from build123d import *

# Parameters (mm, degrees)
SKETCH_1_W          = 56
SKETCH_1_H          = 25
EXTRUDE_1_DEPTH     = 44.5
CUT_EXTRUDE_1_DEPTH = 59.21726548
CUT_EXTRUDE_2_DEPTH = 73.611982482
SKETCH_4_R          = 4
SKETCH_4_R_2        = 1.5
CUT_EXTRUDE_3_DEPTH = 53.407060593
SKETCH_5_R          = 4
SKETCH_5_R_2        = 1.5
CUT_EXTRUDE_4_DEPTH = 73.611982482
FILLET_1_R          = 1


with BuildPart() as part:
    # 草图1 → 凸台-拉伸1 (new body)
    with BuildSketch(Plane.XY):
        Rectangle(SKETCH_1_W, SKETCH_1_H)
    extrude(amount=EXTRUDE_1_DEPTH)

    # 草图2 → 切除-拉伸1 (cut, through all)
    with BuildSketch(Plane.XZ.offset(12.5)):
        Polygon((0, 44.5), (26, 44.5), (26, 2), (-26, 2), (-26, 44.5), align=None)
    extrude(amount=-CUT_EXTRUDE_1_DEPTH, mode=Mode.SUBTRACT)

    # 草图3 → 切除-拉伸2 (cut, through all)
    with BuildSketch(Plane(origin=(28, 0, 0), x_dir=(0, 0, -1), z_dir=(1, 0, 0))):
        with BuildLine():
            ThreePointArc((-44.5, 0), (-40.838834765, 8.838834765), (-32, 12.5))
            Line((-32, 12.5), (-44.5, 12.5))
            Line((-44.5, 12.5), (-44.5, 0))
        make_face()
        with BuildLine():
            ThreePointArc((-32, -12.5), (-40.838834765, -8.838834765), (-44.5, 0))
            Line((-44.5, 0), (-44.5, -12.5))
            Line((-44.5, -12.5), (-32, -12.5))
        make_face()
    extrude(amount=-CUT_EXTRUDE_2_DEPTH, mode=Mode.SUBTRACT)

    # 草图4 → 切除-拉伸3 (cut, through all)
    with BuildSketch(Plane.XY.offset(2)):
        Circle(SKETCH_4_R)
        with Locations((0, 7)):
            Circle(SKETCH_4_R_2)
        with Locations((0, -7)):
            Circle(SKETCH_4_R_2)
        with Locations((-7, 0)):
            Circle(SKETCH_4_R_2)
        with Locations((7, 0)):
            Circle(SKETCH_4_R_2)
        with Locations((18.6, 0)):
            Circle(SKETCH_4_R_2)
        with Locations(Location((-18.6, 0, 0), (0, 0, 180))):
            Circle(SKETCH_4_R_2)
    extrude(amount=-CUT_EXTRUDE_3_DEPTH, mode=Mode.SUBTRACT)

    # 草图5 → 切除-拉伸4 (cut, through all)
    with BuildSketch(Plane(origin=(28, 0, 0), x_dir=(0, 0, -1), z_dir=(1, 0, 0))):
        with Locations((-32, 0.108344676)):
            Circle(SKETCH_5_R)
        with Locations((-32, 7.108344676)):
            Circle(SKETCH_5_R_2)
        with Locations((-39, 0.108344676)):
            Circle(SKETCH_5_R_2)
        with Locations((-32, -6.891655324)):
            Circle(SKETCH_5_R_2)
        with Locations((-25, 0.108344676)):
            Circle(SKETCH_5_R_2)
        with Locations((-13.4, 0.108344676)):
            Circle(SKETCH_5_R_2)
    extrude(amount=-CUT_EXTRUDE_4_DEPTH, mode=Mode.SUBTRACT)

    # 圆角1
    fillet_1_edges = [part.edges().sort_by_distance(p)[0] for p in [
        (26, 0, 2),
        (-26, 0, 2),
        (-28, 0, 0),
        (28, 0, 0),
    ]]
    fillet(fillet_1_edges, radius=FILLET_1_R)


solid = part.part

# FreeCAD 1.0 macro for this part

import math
import FreeCAD as App
import Part
import Sketcher
from FreeCAD import Vector
Q = App.Units.Quantity


def edges_at(feature, points):
    """Names of the edges that pass closest to the given points."""
    edges = feature.Shape.Edges
    near = lambda p: min(range(len(edges)), key=lambda i: edges[i].distToShape(Part.Vertex(*p))[0])
    return sorted({f"Edge{near(p) + 1}" for p in points})


def add_polygon(sketch, points):
    """Adds a closed chain of lines whose ends are joined by coincident constraints."""
    first, n = sketch.GeometryCount, len(points)
    for a, b in zip(points, points[1:] + points[:1]):
        sketch.addGeometry(Part.LineSegment(App.Vector(*a, 0), App.Vector(*b, 0)), False)
    for i in range(n):
        sketch.addConstraint(Sketcher.Constraint("Coincident", first + i, 2, first + (i + 1) % n, 1))

doc = App.newDocument("Part")
body = doc.addObject("PartDesign::Body", "Body")

sketch1 = body.newObject("Sketcher::SketchObject", "Sketch")
sketch1.AttachmentSupport = (doc.getObject("XY_Plane"), [""])
sketch1.MapMode = "FlatFace"
add_polygon(sketch1, [(-28, 12.5), (-28, -12.5), (28, -12.5), (28, 12.5)])
sketch1.addConstraint(Sketcher.Constraint("Vertical", 0))
sketch1.addConstraint(Sketcher.Constraint("Horizontal", 1))
sketch1.addConstraint(Sketcher.Constraint("Vertical", 2))
sketch1.addConstraint(Sketcher.Constraint("Horizontal", 3))
sketch1.addConstraint(Sketcher.Constraint("Symmetric", 0, 2, 2, 2, -1, 1))
sketch1.addConstraint(Sketcher.Constraint("DistanceX", 1, 1, 1, 2, Q("56 mm")))
sketch1.addConstraint(Sketcher.Constraint("DistanceY", 0, 2, 0, 1, Q("25 mm")))
pad1 = body.newObject("PartDesign::Pad", "Pad")
pad1.Profile = sketch1
pad1.Length = 44.5

sketch2 = body.newObject("Sketcher::SketchObject", "Sketch001")
sketch2.AttachmentSupport = (doc.getObject("XZ_Plane"), [""])
sketch2.MapMode = "FlatFace"
sketch2.AttachmentOffset = App.Placement(Vector(0, 0, 12.5), App.Rotation())
add_polygon(sketch2, [(26, 44.5), (-26, 44.5), (-26, 2), (26, 2)])
sketch2.addConstraint(Sketcher.Constraint("Horizontal", 0))
sketch2.addConstraint(Sketcher.Constraint("Vertical", 1))
sketch2.addConstraint(Sketcher.Constraint("Horizontal", 2))
sketch2.addConstraint(Sketcher.Constraint("Vertical", 3))
sketch2.addConstraint(Sketcher.Constraint("DistanceX", 0, 2, 0, 1, Q("52 mm")))
sketch2.addConstraint(Sketcher.Constraint("DistanceY", 1, 2, 1, 1, Q("42.5 mm")))
sketch2.addConstraint(Sketcher.Constraint("DistanceX", 0, 2, -1, 1, Q("26 mm")))
sketch2.addConstraint(Sketcher.Constraint("DistanceY", -1, 1, 1, 2, Q("2 mm")))
pocket1 = body.newObject("PartDesign::Pocket", "Pocket")
pocket1.Profile = sketch2
pocket1.Type = "ThroughAll"

sketch3 = body.newObject("Sketcher::SketchObject", "Sketch002")
sketch3.AttachmentSupport = (doc.getObject("YZ_Plane"), [""])
sketch3.MapMode = "FlatFace"
sketch3.AttachmentOffset = App.Placement(Vector(0, 0, 28), App.Rotation())
sketch3.addGeometry(Part.ArcOfCircle(Part.Circle(Vector(0, 32, 0), Vector(0, 0, 1), 12.5), math.radians(0), math.radians(90)), False)
sketch3.addGeometry(Part.LineSegment(Vector(12.5, 32, 0), Vector(12.5, 44.5, 0)), False)
sketch3.addGeometry(Part.LineSegment(Vector(12.5, 44.5, 0), Vector(0, 44.5, 0)), False)
sketch3.addGeometry(Part.ArcOfCircle(Part.Circle(Vector(0, 32, 0), Vector(0, 0, 1), 12.5), math.radians(90), math.radians(180)), False)
sketch3.addGeometry(Part.LineSegment(Vector(0, 44.5, 0), Vector(-12.5, 44.5, 0)), False)
sketch3.addGeometry(Part.LineSegment(Vector(-12.5, 44.5, 0), Vector(-12.5, 32, 0)), False)
sketch3.addConstraint(Sketcher.Constraint("Tangent", 0, 1, 1, 1))
sketch3.addConstraint(Sketcher.Constraint("Coincident", 1, 2, 2, 1))
sketch3.addConstraint(Sketcher.Constraint("Tangent", 2, 2, 0, 2))
sketch3.addConstraint(Sketcher.Constraint("Tangent", 3, 1, 4, 1))
sketch3.addConstraint(Sketcher.Constraint("Coincident", 4, 2, 5, 1))
sketch3.addConstraint(Sketcher.Constraint("Tangent", 5, 2, 3, 2))
sketch3.addConstraint(Sketcher.Constraint("Vertical", 1))
sketch3.addConstraint(Sketcher.Constraint("Horizontal", 2))
sketch3.addConstraint(Sketcher.Constraint("Horizontal", 4))
sketch3.addConstraint(Sketcher.Constraint("Vertical", 5))
sketch3.addConstraint(Sketcher.Constraint("Coincident", 3, 3, 0, 3))
sketch3.addConstraint(Sketcher.Constraint("Equal", 0, 3))
sketch3.addConstraint(Sketcher.Constraint("PointOnObject", 0, 3, -2))
sketch3.addConstraint(Sketcher.Constraint("Radius", 0, Q("12.5 mm")))
sketch3.addConstraint(Sketcher.Constraint("DistanceY", -1, 1, 0, 3, Q("32 mm")))
pocket2 = body.newObject("PartDesign::Pocket", "Pocket001")
pocket2.Profile = sketch3
pocket2.Type = "ThroughAll"

sketch4 = body.newObject("Sketcher::SketchObject", "Sketch003")
sketch4.AttachmentSupport = (doc.getObject("XY_Plane"), [""])
sketch4.MapMode = "FlatFace"
sketch4.AttachmentOffset = App.Placement(Vector(0, 0, 2), App.Rotation())
sketch4.addGeometry(Part.Circle(Vector(0, 0, 0), Vector(0, 0, 1), 4), False)
sketch4.addGeometry(Part.Circle(Vector(0, 7, 0), Vector(0, 0, 1), 1.5), False)
sketch4.addGeometry(Part.Circle(Vector(0, -7, 0), Vector(0, 0, 1), 1.5), False)
sketch4.addGeometry(Part.Circle(Vector(-7, 0, 0), Vector(0, 0, 1), 1.5), False)
sketch4.addGeometry(Part.Circle(Vector(7, 0, 0), Vector(0, 0, 1), 1.5), False)
sketch4.addGeometry(Part.Circle(Vector(18.6, 0, 0), Vector(0, 0, 1), 1.5), False)
sketch4.addGeometry(Part.Circle(Vector(-18.6, 0, 0), Vector(0, 0, 1), 1.5), False)
sketch4.addConstraint(Sketcher.Constraint("Coincident", 0, 3, -1, 1))
sketch4.addConstraint(Sketcher.Constraint("Equal", 1, 2))
sketch4.addConstraint(Sketcher.Constraint("Equal", 2, 3))
sketch4.addConstraint(Sketcher.Constraint("Equal", 3, 4))
sketch4.addConstraint(Sketcher.Constraint("Equal", 4, 5))
sketch4.addConstraint(Sketcher.Constraint("Equal", 5, 6))
sketch4.addConstraint(Sketcher.Constraint("Symmetric", 1, 3, 2, 3, -1, 1))
sketch4.addConstraint(Sketcher.Constraint("Symmetric", 3, 3, 4, 3, -1, 1))
sketch4.addConstraint(Sketcher.Constraint("Symmetric", 5, 3, 6, 3, -1, 1))
sketch4.addConstraint(Sketcher.Constraint("PointOnObject", 1, 3, -2))
sketch4.addConstraint(Sketcher.Constraint("PointOnObject", 3, 3, -1))
sketch4.addConstraint(Sketcher.Constraint("PointOnObject", 5, 3, -1))
sketch4.addConstraint(Sketcher.Constraint("Diameter", 0, Q("8 mm")))
sketch4.addConstraint(Sketcher.Constraint("Diameter", 1, Q("3 mm")))
sketch4.addConstraint(Sketcher.Constraint("DistanceY", -1, 1, 1, 3, Q("7 mm")))
sketch4.addConstraint(Sketcher.Constraint("DistanceX", 3, 3, -1, 1, Q("7 mm")))
sketch4.addConstraint(Sketcher.Constraint("DistanceX", -1, 1, 5, 3, Q("18.6 mm")))
pocket3 = body.newObject("PartDesign::Pocket", "Pocket002")
pocket3.Profile = sketch4
pocket3.Type = "ThroughAll"

sketch5 = body.newObject("Sketcher::SketchObject", "Sketch004")
sketch5.AttachmentSupport = (doc.getObject("YZ_Plane"), [""])
sketch5.MapMode = "FlatFace"
sketch5.AttachmentOffset = App.Placement(Vector(0, 0, 28), App.Rotation())
sketch5.addGeometry(Part.Circle(Vector(0.108345, 32, 0), Vector(0, 0, 1), 4), False)
sketch5.addGeometry(Part.Circle(Vector(7.108345, 32, 0), Vector(0, 0, 1), 1.5), False)
sketch5.addGeometry(Part.Circle(Vector(0.108345, 39, 0), Vector(0, 0, 1), 1.5), False)
sketch5.addGeometry(Part.Circle(Vector(-6.891655, 32, 0), Vector(0, 0, 1), 1.5), False)
sketch5.addGeometry(Part.Circle(Vector(0.108345, 25, 0), Vector(0, 0, 1), 1.5), False)
sketch5.addGeometry(Part.Circle(Vector(0.108345, 13.4, 0), Vector(0, 0, 1), 1.5), False)
sketch5.addConstraint(Sketcher.Constraint("Equal", 1, 2))
sketch5.addConstraint(Sketcher.Constraint("Equal", 2, 3))
sketch5.addConstraint(Sketcher.Constraint("Equal", 3, 4))
sketch5.addConstraint(Sketcher.Constraint("Equal", 4, 5))
sketch5.addConstraint(Sketcher.Constraint("Horizontal", 0, 3, 1, 3))
sketch5.addConstraint(Sketcher.Constraint("Horizontal", 1, 3, 3, 3))
sketch5.addConstraint(Sketcher.Constraint("Vertical", 0, 3, 2, 3))
sketch5.addConstraint(Sketcher.Constraint("Vertical", 2, 3, 4, 3))
sketch5.addConstraint(Sketcher.Constraint("Vertical", 4, 3, 5, 3))
sketch5.addConstraint(Sketcher.Constraint("Diameter", 0, Q("8 mm")))
sketch5.addConstraint(Sketcher.Constraint("Diameter", 1, Q("3 mm")))
sketch5.addConstraint(Sketcher.Constraint("DistanceY", -1, 1, 0, 3, Q("32 mm")))
sketch5.addConstraint(Sketcher.Constraint("DistanceY", -1, 1, 2, 3, Q("39 mm")))
sketch5.addConstraint(Sketcher.Constraint("DistanceY", -1, 1, 4, 3, Q("25 mm")))
sketch5.addConstraint(Sketcher.Constraint("DistanceX", 0, 3, 1, 3, Q("7 mm")))
sketch5.addConstraint(Sketcher.Constraint("DistanceX", 3, 3, 0, 3, Q("7 mm")))
sketch5.addConstraint(Sketcher.Constraint("DistanceY", -1, 1, 5, 3, Q("13.4 mm")))
sketch5.addConstraint(Sketcher.Constraint("DistanceX", -1, 1, 0, 3, Q("0.108345 mm")))
pocket4 = body.newObject("PartDesign::Pocket", "Pocket003")
pocket4.Profile = sketch5
pocket4.Type = "ThroughAll"
doc.recompute()

fillet = body.newObject("PartDesign::Fillet", "Fillet")
fillet.Base = (pocket4, edges_at(pocket4, [
    (26, 0, 2),
    (-26, 0, 2),
    (-28, 0, 0),
    (28, 0, 0),
]))
fillet.Radius = 1

doc.recompute()
